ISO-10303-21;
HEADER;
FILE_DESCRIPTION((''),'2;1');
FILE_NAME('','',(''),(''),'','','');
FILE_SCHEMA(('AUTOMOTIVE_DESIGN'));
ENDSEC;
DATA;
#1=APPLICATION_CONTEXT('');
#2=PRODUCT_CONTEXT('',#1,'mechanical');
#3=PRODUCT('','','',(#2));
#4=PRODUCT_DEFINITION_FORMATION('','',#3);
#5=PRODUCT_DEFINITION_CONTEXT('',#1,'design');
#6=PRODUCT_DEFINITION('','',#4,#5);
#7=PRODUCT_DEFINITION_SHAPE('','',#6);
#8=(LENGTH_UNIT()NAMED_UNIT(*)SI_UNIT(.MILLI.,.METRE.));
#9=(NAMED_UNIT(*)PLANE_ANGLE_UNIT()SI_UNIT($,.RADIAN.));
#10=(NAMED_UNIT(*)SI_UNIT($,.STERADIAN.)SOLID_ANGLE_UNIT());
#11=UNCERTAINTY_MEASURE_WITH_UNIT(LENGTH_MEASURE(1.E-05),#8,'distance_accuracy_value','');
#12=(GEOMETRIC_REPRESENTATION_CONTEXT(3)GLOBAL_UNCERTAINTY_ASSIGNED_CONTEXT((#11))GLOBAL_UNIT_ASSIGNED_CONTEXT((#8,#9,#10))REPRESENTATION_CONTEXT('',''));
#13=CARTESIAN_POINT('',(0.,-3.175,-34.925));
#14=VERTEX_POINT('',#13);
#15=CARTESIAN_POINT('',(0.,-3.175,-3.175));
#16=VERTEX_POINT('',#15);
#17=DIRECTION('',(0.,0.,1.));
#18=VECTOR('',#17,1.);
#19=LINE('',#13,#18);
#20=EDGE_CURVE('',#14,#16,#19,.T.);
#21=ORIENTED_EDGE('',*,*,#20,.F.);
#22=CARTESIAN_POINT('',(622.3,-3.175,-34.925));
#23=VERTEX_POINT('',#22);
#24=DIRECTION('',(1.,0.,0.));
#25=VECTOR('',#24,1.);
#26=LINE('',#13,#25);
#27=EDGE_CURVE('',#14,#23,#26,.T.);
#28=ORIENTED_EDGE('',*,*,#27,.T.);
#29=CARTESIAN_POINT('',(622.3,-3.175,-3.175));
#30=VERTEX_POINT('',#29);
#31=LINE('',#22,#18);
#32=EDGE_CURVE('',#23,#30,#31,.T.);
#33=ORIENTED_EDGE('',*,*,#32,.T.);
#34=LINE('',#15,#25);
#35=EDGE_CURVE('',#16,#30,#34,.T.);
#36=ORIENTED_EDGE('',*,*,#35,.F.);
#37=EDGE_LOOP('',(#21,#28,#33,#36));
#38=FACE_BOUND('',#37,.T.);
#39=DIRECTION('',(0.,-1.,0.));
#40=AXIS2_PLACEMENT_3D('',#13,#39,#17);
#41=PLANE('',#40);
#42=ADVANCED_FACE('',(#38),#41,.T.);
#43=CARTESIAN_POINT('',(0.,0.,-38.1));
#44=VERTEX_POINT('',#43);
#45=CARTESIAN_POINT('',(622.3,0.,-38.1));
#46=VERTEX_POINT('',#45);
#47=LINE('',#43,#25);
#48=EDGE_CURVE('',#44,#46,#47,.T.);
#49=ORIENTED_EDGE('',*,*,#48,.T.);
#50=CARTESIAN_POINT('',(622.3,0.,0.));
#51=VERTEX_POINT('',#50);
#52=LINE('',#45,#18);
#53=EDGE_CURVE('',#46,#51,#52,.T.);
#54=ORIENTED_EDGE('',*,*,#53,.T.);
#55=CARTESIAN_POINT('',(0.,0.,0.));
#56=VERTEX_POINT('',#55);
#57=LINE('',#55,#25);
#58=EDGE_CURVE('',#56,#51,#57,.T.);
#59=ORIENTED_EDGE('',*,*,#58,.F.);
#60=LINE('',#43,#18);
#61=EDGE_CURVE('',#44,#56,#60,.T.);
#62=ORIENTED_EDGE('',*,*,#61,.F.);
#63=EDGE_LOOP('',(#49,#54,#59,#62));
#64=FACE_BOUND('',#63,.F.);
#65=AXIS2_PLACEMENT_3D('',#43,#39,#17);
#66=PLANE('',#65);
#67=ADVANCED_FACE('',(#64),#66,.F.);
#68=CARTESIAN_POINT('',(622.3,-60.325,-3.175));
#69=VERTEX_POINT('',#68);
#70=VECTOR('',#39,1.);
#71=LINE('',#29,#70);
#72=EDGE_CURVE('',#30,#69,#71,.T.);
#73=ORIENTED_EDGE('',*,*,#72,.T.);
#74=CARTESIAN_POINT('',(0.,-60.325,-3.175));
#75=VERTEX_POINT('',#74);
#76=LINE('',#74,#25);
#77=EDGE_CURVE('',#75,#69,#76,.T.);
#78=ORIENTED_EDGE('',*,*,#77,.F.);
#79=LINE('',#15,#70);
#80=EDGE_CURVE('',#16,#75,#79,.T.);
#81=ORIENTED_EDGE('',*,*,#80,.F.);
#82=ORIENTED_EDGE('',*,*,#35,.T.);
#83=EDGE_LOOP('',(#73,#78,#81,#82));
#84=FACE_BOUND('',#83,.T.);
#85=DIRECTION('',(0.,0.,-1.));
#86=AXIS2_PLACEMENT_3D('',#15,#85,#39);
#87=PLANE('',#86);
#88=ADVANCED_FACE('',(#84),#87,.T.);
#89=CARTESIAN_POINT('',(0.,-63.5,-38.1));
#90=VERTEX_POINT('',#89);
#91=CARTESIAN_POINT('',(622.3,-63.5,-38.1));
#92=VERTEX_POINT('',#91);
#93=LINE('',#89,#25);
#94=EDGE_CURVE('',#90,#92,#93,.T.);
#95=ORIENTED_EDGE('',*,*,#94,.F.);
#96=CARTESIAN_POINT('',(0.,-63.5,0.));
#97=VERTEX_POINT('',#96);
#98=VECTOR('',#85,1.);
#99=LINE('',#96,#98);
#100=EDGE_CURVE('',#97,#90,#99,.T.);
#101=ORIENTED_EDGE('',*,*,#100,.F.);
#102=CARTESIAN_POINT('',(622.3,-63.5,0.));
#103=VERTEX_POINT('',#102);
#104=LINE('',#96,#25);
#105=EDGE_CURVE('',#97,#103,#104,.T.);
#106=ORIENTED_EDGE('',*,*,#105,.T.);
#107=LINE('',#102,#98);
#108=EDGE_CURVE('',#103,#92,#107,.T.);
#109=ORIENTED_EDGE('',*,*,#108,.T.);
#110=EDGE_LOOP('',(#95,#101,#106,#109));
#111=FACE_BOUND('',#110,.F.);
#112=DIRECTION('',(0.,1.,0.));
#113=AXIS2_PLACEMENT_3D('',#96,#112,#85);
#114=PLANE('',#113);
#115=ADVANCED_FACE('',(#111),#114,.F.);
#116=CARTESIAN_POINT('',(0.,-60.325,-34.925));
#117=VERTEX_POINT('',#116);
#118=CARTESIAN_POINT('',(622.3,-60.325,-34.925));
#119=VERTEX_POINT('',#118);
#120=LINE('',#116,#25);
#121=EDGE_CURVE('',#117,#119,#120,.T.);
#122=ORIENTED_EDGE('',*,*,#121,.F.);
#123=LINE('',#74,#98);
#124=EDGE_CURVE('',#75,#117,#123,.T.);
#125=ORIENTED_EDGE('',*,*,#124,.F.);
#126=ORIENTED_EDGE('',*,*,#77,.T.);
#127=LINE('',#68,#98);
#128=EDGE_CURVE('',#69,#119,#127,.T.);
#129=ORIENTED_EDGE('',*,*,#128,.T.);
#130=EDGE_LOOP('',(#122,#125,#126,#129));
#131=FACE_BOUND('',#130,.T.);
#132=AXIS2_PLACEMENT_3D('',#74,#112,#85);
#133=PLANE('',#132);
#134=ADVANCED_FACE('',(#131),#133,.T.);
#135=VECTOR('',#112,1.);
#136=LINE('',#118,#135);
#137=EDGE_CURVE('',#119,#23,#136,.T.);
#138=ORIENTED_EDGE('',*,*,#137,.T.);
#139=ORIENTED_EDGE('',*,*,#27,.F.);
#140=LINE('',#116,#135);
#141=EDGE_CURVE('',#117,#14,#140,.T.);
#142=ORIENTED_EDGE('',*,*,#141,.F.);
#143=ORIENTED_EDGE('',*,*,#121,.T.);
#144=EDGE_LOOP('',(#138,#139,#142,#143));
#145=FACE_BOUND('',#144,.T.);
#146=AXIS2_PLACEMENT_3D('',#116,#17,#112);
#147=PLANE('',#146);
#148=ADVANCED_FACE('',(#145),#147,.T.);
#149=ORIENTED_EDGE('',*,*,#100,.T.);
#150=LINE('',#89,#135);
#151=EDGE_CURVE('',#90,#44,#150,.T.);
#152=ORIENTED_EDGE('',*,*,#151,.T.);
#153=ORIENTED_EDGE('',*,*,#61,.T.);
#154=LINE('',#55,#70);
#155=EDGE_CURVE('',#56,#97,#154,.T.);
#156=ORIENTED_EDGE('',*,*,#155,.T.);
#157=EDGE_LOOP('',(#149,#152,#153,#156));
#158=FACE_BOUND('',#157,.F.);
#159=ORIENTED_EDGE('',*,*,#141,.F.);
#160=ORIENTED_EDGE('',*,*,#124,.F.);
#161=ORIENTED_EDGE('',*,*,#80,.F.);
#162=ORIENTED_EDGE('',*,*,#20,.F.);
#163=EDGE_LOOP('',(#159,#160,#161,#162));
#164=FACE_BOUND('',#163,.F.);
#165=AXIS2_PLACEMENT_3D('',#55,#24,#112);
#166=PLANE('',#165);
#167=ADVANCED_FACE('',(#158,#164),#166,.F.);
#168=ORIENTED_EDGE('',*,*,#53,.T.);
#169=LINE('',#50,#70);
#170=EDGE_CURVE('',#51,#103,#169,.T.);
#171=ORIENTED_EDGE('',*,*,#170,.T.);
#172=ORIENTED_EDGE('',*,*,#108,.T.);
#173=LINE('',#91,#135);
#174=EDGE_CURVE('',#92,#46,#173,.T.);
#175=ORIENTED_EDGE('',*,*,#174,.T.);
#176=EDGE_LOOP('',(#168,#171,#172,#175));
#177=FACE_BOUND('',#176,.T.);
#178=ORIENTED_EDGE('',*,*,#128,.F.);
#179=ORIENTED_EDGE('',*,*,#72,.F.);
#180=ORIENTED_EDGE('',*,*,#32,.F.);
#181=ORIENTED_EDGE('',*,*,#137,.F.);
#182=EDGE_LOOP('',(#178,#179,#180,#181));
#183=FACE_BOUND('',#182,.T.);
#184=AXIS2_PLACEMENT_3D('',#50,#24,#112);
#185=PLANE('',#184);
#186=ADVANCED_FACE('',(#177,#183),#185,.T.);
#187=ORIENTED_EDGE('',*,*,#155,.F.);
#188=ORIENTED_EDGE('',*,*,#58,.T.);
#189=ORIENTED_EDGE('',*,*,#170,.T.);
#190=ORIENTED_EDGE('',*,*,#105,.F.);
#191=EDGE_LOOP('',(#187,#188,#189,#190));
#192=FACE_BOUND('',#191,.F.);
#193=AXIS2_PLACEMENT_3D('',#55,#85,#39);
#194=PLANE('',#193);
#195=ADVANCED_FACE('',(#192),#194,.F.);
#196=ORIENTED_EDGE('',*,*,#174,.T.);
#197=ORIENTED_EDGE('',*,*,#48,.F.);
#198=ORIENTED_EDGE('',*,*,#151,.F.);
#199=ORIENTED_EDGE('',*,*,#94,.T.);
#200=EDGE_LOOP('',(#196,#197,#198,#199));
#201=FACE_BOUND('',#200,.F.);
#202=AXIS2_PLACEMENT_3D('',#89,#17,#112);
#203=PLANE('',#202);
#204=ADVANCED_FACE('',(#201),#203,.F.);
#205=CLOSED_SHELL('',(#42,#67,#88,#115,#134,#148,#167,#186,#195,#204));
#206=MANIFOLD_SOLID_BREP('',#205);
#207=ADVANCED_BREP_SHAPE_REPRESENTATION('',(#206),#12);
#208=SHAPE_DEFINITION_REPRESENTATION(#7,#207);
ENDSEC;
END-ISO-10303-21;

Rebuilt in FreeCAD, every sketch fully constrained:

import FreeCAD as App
import Part
import Sketcher

V = App.Vector
Q = App.Units.Quantity


def add_polygon(sketch, points):
    """Adds a closed chain of lines whose ends are joined by coincident constraints."""
    first, n = sketch.GeometryCount, len(points)
    for a, b in zip(points, points[1:] + points[:1]):
        sketch.addGeometry(Part.LineSegment(App.Vector(*a, 0), App.Vector(*b, 0)), False)
    for i in range(n):
        sketch.addConstraint(Sketcher.Constraint("Coincident", first + i, 2, first + (i + 1) % n, 1))

doc = App.newDocument("Part")
body = doc.addObject("PartDesign::Body", "Body")

sketch1 = doc.addObject("Sketcher::SketchObject", "Sketch")
body.addObject(sketch1)
sketch1.AttachmentSupport = (doc.YZ_Plane, [""])
sketch1.MapMode = "FlatFace"
add_polygon(sketch1, [(0, -38.1), (0, 0), (-63.5, 0), (-63.5, -38.1)])
add_polygon(sketch1, [(-60.325, -3.175), (-3.175, -3.175), (-3.175, -34.925), (-60.325, -34.925)])
sketch1.addConstraint([
    Sketcher.Constraint("Vertical", 0),
    Sketcher.Constraint("Horizontal", 1),
    Sketcher.Constraint("Vertical", 2),
    Sketcher.Constraint("Horizontal", 3),
    Sketcher.Constraint("Horizontal", 4),
    Sketcher.Constraint("Vertical", 5),
    Sketcher.Constraint("Horizontal", 6),
    Sketcher.Constraint("Vertical", 7),
    Sketcher.Constraint("Coincident", 0, 2, -1, 1),
    Sketcher.Constraint("DistanceX", 1, 2, 1, 1, Q("2.5 in")),
    Sketcher.Constraint("DistanceY", 0, 1, 0, 2, Q("1.5 in")),
    Sketcher.Constraint("DistanceX", 4, 2, -1, 1, Q("0.125 in")),
    Sketcher.Constraint("DistanceY", 4, 2, -1, 1, Q("0.125 in")),
    Sketcher.Constraint("DistanceY", 3, 2, 5, 2, Q("0.125 in")),
    Sketcher.Constraint("DistanceX", 2, 2, 6, 2, Q("0.125 in")),
])
pad1 = doc.addObject("PartDesign::Pad", "Pad")
body.addObject(pad1)
pad1.Profile = sketch1
pad1.Length = Q("24.5 in")

doc.recompute()
